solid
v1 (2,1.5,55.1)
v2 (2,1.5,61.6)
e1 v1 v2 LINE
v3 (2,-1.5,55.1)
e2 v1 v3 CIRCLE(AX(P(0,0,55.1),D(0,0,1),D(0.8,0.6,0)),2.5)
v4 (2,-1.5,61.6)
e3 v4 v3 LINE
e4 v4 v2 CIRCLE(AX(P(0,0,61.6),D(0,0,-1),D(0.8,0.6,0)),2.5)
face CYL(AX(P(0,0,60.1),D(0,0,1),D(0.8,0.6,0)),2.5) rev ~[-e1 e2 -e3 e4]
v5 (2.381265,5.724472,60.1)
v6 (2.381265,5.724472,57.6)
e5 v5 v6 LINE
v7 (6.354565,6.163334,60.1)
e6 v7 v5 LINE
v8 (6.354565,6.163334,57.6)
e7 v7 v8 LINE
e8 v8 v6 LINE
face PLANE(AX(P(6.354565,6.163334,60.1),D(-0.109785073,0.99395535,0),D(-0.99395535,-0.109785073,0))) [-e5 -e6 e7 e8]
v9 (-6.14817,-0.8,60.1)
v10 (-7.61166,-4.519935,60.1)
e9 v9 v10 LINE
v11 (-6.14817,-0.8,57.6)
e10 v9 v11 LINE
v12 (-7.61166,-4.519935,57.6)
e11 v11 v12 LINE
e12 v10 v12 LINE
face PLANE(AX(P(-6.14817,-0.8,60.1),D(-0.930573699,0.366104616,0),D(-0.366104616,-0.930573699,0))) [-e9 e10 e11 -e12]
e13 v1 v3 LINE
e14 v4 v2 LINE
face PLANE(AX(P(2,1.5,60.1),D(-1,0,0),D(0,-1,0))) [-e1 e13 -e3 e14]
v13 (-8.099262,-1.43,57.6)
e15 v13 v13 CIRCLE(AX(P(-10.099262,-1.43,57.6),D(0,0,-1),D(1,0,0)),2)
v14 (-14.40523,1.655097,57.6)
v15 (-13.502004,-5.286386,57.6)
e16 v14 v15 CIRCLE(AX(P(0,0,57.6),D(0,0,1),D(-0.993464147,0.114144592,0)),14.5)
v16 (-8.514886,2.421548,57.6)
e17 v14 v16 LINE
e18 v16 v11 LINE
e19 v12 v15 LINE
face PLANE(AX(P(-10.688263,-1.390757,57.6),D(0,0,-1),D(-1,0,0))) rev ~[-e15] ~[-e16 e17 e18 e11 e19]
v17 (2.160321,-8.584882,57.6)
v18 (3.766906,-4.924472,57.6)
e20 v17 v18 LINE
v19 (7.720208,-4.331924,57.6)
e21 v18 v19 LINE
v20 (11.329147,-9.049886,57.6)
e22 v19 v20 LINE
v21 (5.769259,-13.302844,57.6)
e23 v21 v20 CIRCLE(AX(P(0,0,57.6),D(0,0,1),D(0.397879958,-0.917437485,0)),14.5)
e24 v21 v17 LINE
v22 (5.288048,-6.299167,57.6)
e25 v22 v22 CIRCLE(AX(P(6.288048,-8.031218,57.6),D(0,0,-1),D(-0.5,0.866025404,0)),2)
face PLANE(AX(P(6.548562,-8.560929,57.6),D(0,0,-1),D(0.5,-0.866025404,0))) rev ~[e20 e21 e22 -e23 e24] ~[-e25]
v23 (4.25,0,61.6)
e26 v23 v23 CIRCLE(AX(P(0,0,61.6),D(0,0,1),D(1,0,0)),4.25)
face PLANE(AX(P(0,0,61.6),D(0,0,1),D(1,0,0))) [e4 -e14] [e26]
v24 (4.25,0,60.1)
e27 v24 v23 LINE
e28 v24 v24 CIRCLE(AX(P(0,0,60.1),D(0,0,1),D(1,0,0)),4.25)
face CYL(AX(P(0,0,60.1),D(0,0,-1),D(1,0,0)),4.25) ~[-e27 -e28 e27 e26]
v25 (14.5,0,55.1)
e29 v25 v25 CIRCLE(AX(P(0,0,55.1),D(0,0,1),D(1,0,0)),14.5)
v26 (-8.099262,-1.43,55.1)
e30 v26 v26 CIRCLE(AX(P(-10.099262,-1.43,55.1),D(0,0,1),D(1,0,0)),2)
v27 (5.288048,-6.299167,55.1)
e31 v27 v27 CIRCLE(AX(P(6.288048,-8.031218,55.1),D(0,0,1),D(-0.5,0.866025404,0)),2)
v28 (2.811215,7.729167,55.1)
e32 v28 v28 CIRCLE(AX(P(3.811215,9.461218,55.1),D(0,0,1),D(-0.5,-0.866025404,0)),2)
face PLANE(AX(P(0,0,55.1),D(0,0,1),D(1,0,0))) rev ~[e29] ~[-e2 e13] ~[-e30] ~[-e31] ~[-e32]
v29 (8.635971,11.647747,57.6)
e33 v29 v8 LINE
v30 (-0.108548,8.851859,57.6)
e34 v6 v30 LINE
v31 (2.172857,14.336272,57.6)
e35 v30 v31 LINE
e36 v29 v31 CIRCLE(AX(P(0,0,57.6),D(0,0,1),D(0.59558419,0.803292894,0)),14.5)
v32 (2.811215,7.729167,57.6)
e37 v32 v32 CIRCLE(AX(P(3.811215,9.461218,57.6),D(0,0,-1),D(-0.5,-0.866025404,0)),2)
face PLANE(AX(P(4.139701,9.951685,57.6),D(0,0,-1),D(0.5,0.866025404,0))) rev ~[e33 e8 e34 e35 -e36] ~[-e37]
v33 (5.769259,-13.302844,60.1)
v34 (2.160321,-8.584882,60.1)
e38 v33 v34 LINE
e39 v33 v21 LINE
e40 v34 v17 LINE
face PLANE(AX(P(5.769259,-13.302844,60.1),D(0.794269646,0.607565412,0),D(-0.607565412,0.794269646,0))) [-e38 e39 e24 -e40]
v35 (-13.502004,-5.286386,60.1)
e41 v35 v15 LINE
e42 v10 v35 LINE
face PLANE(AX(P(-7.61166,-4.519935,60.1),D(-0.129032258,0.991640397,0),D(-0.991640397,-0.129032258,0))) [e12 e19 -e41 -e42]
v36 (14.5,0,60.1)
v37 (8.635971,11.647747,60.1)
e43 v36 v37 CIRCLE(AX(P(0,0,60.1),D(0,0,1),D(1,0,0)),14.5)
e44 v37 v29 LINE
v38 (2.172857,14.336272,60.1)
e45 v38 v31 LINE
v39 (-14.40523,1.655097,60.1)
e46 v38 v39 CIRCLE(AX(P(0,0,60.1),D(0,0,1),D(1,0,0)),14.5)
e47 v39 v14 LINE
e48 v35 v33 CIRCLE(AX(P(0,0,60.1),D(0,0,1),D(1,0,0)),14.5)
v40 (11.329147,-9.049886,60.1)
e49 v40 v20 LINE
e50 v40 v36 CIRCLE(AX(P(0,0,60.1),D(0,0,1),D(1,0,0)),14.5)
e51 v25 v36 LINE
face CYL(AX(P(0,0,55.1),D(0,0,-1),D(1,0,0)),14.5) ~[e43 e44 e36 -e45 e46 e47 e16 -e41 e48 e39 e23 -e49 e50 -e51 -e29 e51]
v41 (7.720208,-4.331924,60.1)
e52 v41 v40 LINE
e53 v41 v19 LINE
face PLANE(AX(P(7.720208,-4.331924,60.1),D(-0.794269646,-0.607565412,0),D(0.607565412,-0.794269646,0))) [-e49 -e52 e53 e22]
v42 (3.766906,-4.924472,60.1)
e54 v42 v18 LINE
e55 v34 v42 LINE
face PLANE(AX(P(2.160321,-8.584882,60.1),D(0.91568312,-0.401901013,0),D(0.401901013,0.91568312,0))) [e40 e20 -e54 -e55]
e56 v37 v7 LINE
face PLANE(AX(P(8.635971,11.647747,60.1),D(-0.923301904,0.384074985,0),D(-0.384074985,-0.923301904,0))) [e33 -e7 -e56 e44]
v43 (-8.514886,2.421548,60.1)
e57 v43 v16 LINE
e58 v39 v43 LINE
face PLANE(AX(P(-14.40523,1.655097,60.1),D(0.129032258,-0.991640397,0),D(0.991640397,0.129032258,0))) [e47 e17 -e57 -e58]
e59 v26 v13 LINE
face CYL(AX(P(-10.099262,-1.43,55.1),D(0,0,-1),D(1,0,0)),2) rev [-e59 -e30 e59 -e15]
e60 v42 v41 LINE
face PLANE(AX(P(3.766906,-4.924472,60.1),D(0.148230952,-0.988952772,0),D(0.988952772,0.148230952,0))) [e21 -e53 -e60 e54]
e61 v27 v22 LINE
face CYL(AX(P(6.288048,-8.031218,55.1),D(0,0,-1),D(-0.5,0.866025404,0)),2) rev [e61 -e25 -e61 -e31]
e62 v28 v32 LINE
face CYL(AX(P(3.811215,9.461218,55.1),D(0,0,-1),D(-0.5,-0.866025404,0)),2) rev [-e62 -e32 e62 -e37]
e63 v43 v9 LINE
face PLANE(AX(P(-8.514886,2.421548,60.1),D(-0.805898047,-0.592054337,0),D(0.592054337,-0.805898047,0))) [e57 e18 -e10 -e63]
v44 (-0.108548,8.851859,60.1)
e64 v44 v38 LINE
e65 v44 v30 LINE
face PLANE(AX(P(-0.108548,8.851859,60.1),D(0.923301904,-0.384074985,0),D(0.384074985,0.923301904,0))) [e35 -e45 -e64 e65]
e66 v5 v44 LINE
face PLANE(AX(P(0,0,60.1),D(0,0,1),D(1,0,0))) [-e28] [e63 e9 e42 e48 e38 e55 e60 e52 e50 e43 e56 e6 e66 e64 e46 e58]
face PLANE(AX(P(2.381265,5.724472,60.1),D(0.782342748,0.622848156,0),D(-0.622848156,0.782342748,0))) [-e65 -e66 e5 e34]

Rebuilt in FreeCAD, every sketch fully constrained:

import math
import FreeCAD as App
import Part
import Sketcher
Q = App.Units.Quantity

doc = App.newDocument("Part")
body = doc.addObject("PartDesign::Body", "Body")

# Sketch on XY plane
sketch1 = doc.addObject("Sketcher::SketchObject", "Sketch")
body.addObject(sketch1)
sketch1.AttachmentSupport = (doc.XY_Plane, [""])
sketch1.MapMode = "FlatFace"
sketch1.AttachmentOffset = App.Placement(App.Vector(0, 0, 55.1), App.Rotation())
sketch1.addGeometry(Part.Circle(App.Vector(0, 0, 0), App.Vector(0, 0, 1), 14.5), False)
sketch1.addConstraint([
    Sketcher.Constraint("Coincident", 0, 3, -1, 1),
    Sketcher.Constraint("Diameter", 0, Q("29 mm")),
])
pad1 = doc.addObject("PartDesign::Pad", "Pad")
body.addObject(pad1)
pad1.Profile = sketch1
pad1.Length = 5

# Sketch on XY plane
sketch2 = doc.addObject("Sketcher::SketchObject", "Sketch001")
body.addObject(sketch2)
sketch2.AttachmentSupport = (doc.XY_Plane, [""])
sketch2.MapMode = "FlatFace"
sketch2.AttachmentOffset = App.Placement(App.Vector(0, 0, 60.1), App.Rotation())
sketch2.addGeometry([
    Part.LineSegment(App.Vector(-8.514886, 2.421548, 0), App.Vector(-14.40523, 1.655097, 0)),  # 0
    Part.ArcOfCircle(Part.Circle(App.Vector(0, 0, 0), App.Vector(0, 0, 1), 14.5), math.radians(173.445711), math.radians(201.381636)),  # 1
    Part.LineSegment(App.Vector(-13.502004, -5.286386, 0), App.Vector(-7.61166, -4.519935, 0)),  # 2
    Part.LineSegment(App.Vector(-7.61166, -4.519935, 0), App.Vector(-6.14817, -0.8, 0)),  # 3
    Part.LineSegment(App.Vector(-6.14817, -0.8, 0), App.Vector(-8.514886, 2.421548, 0)),  # 4
], False)
sketch2.addConstraint([
    Sketcher.Constraint("Coincident", 0, 2, 1, 1),
    Sketcher.Constraint("Coincident", 1, 2, 2, 1),
    Sketcher.Constraint("Coincident", 2, 2, 3, 1),
    Sketcher.Constraint("Coincident", 3, 2, 4, 1),
    Sketcher.Constraint("Coincident", 4, 2, 0, 1),
    Sketcher.Constraint("Coincident", 1, 3, -1, 1),
    Sketcher.Constraint("Parallel", 0, 2),
    Sketcher.Constraint("Equal", 0, 2),
    Sketcher.Constraint("Equal", 3, 4),
    Sketcher.Constraint("Radius", 1, Q("14.5 mm")),
    Sketcher.Constraint("DistanceY", 3, 2, -1, 1, Q("0.8 mm")),
    Sketcher.Constraint("Distance", 0, Q("5.94 mm")),
    Sketcher.Constraint("DistanceX", 0, 2, -1, 1, Q("14.40523 mm")),
    Sketcher.Constraint("DistanceX", 2, 2, -1, 1, Q("7.61166 mm")),
    Sketcher.Constraint("DistanceX", 3, 2, -1, 1, Q("6.14817 mm")),
])
pocket1 = doc.addObject("PartDesign::Pocket", "Pocket")
body.addObject(pocket1)
pocket1.Profile = sketch2
pocket1.Length = 2.5

# Sketch on XY plane
sketch3 = doc.addObject("Sketcher::SketchObject", "Sketch002")
body.addObject(sketch3)
sketch3.AttachmentSupport = (doc.XY_Plane, [""])
sketch3.MapMode = "FlatFace"
sketch3.AttachmentOffset = App.Placement(App.Vector(0, 0, 55.1), App.Rotation())
sketch3.addGeometry(Part.Circle(App.Vector(-10.099262, -1.43, 0), App.Vector(0, 0, 1), 2), False)
sketch3.addConstraint([
    Sketcher.Constraint("Diameter", 0, Q("4 mm")),
    Sketcher.Constraint("DistanceY", 0, 3, -1, 1, Q("1.43 mm")),
    Sketcher.Constraint("DistanceX", 0, 3, -1, 1, Q("10.099262 mm")),
])
pocket2 = doc.addObject("PartDesign::Pocket", "Pocket001")
body.addObject(pocket2)
pocket2.Profile = sketch3
pocket2.Type = "ThroughAll"
pocket2.Reversed = True
doc.recompute()

polarpattern = doc.addObject("PartDesign::PolarPattern", "PolarPattern")
body.addObject(polarpattern)
polarpattern.Originals = [pocket2, pocket1]
polarpattern.Axis = (doc.Z_Axis, [""])
polarpattern.Angle = 360
polarpattern.Occurrences = 3
body.Tip = polarpattern

# Sketch on XY plane
sketch4 = doc.addObject("Sketcher::SketchObject", "Sketch003")
body.addObject(sketch4)
sketch4.AttachmentSupport = (doc.XY_Plane, [""])
sketch4.MapMode = "FlatFace"
sketch4.AttachmentOffset = App.Placement(App.Vector(0, 0, 60.1), App.Rotation())
sketch4.addGeometry(Part.Circle(App.Vector(0, 0, 0), App.Vector(0, 0, 1), 4.25), False)
sketch4.addConstraint([
    Sketcher.Constraint("Coincident", 0, 3, -1, 1),
    Sketcher.Constraint("Diameter", 0, Q("8.5 mm")),
])
pad2 = doc.addObject("PartDesign::Pad", "Pad001")
body.addObject(pad2)
pad2.Profile = sketch4
pad2.Length = 1.5

# Sketch on XY plane
sketch5 = doc.addObject("Sketcher::SketchObject", "Sketch004")
body.addObject(sketch5)
sketch5.AttachmentSupport = (doc.XY_Plane, [""])
sketch5.MapMode = "FlatFace"
sketch5.AttachmentOffset = App.Placement(App.Vector(0, 0, 60.1), App.Rotation())
sketch5.addGeometry([
    Part.LineSegment(App.Vector(2, -1.5, 0), App.Vector(2, 1.5, 0)),
    Part.ArcOfCircle(Part.Circle(App.Vector(0, 0, 0), App.Vector(0, 0, 1), 2.5), math.radians(36.869898), math.radians(323.130102)),
], False)
sketch5.addConstraint([
    Sketcher.Constraint("Coincident", 0, 1, 1, 2),
    Sketcher.Constraint("Coincident", 1, 1, 0, 2),
    Sketcher.Constraint("Vertical", 0),
    Sketcher.Constraint("Coincident", 1, 3, -1, 1),
    Sketcher.Constraint("Radius", 1, Q("2.5 mm")),
    Sketcher.Constraint("DistanceY", 0, 1, 0, 2, Q("3 mm")),
])
pocket3 = doc.addObject("PartDesign::Pocket", "Pocket002")
body.addObject(pocket3)
pocket3.Profile = sketch5
pocket3.Type = "ThroughAll"
pocket3.Midplane = True

doc.recompute()
